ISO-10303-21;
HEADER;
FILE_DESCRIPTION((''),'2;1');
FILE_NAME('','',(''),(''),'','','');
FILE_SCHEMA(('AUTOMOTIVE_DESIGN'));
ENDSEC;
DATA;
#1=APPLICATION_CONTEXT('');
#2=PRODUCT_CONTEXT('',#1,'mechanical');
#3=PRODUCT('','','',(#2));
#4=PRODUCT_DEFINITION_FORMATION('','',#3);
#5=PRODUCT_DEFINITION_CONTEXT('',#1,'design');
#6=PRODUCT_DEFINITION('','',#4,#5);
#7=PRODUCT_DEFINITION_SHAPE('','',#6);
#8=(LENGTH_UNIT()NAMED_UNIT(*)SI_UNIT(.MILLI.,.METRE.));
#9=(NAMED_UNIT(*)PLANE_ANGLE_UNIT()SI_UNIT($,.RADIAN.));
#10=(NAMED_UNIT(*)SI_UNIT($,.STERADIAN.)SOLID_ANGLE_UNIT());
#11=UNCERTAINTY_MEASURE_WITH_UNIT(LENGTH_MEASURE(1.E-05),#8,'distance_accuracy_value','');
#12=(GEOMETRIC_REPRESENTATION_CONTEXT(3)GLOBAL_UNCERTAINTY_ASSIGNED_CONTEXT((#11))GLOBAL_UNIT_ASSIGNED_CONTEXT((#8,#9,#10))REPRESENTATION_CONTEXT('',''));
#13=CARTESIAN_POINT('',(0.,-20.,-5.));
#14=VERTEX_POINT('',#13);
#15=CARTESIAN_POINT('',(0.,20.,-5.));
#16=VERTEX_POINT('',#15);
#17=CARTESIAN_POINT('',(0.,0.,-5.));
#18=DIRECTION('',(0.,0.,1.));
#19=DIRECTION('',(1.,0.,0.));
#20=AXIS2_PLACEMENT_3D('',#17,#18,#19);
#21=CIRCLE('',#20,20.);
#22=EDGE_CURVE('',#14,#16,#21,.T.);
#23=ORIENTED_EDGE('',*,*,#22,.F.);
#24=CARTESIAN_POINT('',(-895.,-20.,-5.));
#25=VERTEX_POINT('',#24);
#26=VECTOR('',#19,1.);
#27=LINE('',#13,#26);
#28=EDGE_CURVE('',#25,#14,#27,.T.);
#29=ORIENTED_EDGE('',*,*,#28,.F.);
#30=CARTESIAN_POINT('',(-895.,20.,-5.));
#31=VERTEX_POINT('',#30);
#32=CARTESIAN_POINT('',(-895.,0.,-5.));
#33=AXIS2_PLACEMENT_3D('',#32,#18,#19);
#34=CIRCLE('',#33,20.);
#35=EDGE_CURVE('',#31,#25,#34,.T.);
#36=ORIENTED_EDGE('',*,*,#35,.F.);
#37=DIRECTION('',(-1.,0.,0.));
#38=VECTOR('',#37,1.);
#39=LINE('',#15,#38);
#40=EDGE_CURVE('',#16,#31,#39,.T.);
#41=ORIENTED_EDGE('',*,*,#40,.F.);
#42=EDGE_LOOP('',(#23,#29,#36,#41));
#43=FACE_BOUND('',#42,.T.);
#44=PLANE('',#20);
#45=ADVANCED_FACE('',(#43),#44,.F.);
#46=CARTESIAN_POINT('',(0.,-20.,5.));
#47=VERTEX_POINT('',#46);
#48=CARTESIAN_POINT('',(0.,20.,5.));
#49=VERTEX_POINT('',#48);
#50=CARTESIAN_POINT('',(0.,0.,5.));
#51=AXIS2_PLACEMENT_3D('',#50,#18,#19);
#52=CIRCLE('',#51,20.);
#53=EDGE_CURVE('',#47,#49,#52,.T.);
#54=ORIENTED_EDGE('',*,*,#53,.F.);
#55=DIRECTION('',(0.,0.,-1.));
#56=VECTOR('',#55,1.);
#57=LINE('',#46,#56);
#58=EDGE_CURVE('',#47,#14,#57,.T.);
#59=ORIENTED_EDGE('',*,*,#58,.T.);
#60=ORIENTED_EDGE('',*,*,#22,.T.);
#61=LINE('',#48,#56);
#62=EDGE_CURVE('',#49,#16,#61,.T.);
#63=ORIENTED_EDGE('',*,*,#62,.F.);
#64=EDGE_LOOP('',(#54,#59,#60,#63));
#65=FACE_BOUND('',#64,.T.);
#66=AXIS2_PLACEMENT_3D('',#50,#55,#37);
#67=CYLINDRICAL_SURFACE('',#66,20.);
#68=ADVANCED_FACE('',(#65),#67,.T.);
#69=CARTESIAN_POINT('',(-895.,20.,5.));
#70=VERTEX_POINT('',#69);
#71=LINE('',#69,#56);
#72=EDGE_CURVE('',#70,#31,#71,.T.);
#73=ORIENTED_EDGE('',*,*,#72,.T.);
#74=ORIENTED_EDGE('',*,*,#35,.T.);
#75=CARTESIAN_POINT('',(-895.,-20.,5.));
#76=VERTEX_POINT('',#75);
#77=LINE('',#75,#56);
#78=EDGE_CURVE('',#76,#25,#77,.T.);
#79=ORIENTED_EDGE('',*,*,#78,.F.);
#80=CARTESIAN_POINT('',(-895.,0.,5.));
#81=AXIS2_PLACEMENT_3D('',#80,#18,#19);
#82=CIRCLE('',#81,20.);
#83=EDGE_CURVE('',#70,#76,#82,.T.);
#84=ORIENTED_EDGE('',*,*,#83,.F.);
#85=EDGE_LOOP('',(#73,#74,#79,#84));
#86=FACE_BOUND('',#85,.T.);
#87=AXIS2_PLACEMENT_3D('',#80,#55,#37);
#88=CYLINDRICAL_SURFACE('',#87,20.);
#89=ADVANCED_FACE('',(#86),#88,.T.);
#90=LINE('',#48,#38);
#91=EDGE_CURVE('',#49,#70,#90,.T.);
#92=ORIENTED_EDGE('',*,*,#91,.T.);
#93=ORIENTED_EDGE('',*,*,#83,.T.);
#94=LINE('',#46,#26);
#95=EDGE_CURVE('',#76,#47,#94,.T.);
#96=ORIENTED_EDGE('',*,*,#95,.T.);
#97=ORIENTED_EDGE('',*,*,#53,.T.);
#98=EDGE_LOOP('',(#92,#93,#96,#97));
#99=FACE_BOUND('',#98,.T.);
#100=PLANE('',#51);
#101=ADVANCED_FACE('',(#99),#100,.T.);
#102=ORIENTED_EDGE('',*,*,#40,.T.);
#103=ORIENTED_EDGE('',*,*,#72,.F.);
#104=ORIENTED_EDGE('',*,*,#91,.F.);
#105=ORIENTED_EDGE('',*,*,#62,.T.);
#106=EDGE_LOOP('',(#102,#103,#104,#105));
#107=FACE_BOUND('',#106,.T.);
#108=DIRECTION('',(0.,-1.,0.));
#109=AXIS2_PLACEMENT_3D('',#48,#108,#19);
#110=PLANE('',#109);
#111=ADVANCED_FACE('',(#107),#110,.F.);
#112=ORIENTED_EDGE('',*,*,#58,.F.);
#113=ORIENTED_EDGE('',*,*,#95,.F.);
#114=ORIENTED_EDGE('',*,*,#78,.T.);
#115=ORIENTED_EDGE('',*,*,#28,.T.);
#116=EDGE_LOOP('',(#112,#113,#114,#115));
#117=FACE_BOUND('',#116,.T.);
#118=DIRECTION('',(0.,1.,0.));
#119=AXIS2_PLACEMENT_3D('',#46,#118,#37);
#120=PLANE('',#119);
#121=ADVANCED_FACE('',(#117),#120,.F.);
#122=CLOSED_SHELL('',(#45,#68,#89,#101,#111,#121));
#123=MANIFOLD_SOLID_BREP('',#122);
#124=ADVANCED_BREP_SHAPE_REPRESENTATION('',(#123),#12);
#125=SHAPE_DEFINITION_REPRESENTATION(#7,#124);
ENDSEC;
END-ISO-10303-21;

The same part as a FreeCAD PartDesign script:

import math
import FreeCAD as App
import Part
import Sketcher

V = App.Vector
Q = App.Units.Quantity

doc = App.newDocument("Part")
body = doc.addObject("PartDesign::Body", "Body")

# Sketch on XY plane
sketch1 = body.newObject("Sketcher::SketchObject", "Sketch")
sketch1.AttachmentSupport = (doc.getObject("XY_Plane"), [""])
sketch1.MapMode = "FlatFace"
sketch1.addGeometry([
    Part.LineSegment(V(-895, -20, 0), V(0, -20, 0)),
    Part.ArcOfCircle(Part.Circle(V(0, 0, 0), V(0, 0, 1), 20), math.radians(-90), math.radians(90)),
    Part.LineSegment(V(0, 20, 0), V(-895, 20, 0)),
    Part.ArcOfCircle(Part.Circle(V(-895, 0, 0), V(0, 0, 1), 20), math.radians(90), math.radians(270)),
], False)
sketch1.addConstraint([
    Sketcher.Constraint("Tangent", 0, 2, 1, 1),
    Sketcher.Constraint("Tangent", 1, 2, 2, 1),
    Sketcher.Constraint("Tangent", 2, 2, 3, 1),
    Sketcher.Constraint("Tangent", 3, 2, 0, 1),
    Sketcher.Constraint("Horizontal", 0),
    Sketcher.Constraint("Horizontal", 2),
    Sketcher.Constraint("Coincident", 1, 3, -1, 1),
    Sketcher.Constraint("Radius", 1, Q("20 mm")),
    Sketcher.Constraint("DistanceX", 0, 1, 0, 2, Q("895 mm")),
])
pad1 = body.newObject("PartDesign::Pad", "Pad")
pad1.Profile = sketch1
pad1.Length = 10
pad1.Midplane = True

doc.recompute()
